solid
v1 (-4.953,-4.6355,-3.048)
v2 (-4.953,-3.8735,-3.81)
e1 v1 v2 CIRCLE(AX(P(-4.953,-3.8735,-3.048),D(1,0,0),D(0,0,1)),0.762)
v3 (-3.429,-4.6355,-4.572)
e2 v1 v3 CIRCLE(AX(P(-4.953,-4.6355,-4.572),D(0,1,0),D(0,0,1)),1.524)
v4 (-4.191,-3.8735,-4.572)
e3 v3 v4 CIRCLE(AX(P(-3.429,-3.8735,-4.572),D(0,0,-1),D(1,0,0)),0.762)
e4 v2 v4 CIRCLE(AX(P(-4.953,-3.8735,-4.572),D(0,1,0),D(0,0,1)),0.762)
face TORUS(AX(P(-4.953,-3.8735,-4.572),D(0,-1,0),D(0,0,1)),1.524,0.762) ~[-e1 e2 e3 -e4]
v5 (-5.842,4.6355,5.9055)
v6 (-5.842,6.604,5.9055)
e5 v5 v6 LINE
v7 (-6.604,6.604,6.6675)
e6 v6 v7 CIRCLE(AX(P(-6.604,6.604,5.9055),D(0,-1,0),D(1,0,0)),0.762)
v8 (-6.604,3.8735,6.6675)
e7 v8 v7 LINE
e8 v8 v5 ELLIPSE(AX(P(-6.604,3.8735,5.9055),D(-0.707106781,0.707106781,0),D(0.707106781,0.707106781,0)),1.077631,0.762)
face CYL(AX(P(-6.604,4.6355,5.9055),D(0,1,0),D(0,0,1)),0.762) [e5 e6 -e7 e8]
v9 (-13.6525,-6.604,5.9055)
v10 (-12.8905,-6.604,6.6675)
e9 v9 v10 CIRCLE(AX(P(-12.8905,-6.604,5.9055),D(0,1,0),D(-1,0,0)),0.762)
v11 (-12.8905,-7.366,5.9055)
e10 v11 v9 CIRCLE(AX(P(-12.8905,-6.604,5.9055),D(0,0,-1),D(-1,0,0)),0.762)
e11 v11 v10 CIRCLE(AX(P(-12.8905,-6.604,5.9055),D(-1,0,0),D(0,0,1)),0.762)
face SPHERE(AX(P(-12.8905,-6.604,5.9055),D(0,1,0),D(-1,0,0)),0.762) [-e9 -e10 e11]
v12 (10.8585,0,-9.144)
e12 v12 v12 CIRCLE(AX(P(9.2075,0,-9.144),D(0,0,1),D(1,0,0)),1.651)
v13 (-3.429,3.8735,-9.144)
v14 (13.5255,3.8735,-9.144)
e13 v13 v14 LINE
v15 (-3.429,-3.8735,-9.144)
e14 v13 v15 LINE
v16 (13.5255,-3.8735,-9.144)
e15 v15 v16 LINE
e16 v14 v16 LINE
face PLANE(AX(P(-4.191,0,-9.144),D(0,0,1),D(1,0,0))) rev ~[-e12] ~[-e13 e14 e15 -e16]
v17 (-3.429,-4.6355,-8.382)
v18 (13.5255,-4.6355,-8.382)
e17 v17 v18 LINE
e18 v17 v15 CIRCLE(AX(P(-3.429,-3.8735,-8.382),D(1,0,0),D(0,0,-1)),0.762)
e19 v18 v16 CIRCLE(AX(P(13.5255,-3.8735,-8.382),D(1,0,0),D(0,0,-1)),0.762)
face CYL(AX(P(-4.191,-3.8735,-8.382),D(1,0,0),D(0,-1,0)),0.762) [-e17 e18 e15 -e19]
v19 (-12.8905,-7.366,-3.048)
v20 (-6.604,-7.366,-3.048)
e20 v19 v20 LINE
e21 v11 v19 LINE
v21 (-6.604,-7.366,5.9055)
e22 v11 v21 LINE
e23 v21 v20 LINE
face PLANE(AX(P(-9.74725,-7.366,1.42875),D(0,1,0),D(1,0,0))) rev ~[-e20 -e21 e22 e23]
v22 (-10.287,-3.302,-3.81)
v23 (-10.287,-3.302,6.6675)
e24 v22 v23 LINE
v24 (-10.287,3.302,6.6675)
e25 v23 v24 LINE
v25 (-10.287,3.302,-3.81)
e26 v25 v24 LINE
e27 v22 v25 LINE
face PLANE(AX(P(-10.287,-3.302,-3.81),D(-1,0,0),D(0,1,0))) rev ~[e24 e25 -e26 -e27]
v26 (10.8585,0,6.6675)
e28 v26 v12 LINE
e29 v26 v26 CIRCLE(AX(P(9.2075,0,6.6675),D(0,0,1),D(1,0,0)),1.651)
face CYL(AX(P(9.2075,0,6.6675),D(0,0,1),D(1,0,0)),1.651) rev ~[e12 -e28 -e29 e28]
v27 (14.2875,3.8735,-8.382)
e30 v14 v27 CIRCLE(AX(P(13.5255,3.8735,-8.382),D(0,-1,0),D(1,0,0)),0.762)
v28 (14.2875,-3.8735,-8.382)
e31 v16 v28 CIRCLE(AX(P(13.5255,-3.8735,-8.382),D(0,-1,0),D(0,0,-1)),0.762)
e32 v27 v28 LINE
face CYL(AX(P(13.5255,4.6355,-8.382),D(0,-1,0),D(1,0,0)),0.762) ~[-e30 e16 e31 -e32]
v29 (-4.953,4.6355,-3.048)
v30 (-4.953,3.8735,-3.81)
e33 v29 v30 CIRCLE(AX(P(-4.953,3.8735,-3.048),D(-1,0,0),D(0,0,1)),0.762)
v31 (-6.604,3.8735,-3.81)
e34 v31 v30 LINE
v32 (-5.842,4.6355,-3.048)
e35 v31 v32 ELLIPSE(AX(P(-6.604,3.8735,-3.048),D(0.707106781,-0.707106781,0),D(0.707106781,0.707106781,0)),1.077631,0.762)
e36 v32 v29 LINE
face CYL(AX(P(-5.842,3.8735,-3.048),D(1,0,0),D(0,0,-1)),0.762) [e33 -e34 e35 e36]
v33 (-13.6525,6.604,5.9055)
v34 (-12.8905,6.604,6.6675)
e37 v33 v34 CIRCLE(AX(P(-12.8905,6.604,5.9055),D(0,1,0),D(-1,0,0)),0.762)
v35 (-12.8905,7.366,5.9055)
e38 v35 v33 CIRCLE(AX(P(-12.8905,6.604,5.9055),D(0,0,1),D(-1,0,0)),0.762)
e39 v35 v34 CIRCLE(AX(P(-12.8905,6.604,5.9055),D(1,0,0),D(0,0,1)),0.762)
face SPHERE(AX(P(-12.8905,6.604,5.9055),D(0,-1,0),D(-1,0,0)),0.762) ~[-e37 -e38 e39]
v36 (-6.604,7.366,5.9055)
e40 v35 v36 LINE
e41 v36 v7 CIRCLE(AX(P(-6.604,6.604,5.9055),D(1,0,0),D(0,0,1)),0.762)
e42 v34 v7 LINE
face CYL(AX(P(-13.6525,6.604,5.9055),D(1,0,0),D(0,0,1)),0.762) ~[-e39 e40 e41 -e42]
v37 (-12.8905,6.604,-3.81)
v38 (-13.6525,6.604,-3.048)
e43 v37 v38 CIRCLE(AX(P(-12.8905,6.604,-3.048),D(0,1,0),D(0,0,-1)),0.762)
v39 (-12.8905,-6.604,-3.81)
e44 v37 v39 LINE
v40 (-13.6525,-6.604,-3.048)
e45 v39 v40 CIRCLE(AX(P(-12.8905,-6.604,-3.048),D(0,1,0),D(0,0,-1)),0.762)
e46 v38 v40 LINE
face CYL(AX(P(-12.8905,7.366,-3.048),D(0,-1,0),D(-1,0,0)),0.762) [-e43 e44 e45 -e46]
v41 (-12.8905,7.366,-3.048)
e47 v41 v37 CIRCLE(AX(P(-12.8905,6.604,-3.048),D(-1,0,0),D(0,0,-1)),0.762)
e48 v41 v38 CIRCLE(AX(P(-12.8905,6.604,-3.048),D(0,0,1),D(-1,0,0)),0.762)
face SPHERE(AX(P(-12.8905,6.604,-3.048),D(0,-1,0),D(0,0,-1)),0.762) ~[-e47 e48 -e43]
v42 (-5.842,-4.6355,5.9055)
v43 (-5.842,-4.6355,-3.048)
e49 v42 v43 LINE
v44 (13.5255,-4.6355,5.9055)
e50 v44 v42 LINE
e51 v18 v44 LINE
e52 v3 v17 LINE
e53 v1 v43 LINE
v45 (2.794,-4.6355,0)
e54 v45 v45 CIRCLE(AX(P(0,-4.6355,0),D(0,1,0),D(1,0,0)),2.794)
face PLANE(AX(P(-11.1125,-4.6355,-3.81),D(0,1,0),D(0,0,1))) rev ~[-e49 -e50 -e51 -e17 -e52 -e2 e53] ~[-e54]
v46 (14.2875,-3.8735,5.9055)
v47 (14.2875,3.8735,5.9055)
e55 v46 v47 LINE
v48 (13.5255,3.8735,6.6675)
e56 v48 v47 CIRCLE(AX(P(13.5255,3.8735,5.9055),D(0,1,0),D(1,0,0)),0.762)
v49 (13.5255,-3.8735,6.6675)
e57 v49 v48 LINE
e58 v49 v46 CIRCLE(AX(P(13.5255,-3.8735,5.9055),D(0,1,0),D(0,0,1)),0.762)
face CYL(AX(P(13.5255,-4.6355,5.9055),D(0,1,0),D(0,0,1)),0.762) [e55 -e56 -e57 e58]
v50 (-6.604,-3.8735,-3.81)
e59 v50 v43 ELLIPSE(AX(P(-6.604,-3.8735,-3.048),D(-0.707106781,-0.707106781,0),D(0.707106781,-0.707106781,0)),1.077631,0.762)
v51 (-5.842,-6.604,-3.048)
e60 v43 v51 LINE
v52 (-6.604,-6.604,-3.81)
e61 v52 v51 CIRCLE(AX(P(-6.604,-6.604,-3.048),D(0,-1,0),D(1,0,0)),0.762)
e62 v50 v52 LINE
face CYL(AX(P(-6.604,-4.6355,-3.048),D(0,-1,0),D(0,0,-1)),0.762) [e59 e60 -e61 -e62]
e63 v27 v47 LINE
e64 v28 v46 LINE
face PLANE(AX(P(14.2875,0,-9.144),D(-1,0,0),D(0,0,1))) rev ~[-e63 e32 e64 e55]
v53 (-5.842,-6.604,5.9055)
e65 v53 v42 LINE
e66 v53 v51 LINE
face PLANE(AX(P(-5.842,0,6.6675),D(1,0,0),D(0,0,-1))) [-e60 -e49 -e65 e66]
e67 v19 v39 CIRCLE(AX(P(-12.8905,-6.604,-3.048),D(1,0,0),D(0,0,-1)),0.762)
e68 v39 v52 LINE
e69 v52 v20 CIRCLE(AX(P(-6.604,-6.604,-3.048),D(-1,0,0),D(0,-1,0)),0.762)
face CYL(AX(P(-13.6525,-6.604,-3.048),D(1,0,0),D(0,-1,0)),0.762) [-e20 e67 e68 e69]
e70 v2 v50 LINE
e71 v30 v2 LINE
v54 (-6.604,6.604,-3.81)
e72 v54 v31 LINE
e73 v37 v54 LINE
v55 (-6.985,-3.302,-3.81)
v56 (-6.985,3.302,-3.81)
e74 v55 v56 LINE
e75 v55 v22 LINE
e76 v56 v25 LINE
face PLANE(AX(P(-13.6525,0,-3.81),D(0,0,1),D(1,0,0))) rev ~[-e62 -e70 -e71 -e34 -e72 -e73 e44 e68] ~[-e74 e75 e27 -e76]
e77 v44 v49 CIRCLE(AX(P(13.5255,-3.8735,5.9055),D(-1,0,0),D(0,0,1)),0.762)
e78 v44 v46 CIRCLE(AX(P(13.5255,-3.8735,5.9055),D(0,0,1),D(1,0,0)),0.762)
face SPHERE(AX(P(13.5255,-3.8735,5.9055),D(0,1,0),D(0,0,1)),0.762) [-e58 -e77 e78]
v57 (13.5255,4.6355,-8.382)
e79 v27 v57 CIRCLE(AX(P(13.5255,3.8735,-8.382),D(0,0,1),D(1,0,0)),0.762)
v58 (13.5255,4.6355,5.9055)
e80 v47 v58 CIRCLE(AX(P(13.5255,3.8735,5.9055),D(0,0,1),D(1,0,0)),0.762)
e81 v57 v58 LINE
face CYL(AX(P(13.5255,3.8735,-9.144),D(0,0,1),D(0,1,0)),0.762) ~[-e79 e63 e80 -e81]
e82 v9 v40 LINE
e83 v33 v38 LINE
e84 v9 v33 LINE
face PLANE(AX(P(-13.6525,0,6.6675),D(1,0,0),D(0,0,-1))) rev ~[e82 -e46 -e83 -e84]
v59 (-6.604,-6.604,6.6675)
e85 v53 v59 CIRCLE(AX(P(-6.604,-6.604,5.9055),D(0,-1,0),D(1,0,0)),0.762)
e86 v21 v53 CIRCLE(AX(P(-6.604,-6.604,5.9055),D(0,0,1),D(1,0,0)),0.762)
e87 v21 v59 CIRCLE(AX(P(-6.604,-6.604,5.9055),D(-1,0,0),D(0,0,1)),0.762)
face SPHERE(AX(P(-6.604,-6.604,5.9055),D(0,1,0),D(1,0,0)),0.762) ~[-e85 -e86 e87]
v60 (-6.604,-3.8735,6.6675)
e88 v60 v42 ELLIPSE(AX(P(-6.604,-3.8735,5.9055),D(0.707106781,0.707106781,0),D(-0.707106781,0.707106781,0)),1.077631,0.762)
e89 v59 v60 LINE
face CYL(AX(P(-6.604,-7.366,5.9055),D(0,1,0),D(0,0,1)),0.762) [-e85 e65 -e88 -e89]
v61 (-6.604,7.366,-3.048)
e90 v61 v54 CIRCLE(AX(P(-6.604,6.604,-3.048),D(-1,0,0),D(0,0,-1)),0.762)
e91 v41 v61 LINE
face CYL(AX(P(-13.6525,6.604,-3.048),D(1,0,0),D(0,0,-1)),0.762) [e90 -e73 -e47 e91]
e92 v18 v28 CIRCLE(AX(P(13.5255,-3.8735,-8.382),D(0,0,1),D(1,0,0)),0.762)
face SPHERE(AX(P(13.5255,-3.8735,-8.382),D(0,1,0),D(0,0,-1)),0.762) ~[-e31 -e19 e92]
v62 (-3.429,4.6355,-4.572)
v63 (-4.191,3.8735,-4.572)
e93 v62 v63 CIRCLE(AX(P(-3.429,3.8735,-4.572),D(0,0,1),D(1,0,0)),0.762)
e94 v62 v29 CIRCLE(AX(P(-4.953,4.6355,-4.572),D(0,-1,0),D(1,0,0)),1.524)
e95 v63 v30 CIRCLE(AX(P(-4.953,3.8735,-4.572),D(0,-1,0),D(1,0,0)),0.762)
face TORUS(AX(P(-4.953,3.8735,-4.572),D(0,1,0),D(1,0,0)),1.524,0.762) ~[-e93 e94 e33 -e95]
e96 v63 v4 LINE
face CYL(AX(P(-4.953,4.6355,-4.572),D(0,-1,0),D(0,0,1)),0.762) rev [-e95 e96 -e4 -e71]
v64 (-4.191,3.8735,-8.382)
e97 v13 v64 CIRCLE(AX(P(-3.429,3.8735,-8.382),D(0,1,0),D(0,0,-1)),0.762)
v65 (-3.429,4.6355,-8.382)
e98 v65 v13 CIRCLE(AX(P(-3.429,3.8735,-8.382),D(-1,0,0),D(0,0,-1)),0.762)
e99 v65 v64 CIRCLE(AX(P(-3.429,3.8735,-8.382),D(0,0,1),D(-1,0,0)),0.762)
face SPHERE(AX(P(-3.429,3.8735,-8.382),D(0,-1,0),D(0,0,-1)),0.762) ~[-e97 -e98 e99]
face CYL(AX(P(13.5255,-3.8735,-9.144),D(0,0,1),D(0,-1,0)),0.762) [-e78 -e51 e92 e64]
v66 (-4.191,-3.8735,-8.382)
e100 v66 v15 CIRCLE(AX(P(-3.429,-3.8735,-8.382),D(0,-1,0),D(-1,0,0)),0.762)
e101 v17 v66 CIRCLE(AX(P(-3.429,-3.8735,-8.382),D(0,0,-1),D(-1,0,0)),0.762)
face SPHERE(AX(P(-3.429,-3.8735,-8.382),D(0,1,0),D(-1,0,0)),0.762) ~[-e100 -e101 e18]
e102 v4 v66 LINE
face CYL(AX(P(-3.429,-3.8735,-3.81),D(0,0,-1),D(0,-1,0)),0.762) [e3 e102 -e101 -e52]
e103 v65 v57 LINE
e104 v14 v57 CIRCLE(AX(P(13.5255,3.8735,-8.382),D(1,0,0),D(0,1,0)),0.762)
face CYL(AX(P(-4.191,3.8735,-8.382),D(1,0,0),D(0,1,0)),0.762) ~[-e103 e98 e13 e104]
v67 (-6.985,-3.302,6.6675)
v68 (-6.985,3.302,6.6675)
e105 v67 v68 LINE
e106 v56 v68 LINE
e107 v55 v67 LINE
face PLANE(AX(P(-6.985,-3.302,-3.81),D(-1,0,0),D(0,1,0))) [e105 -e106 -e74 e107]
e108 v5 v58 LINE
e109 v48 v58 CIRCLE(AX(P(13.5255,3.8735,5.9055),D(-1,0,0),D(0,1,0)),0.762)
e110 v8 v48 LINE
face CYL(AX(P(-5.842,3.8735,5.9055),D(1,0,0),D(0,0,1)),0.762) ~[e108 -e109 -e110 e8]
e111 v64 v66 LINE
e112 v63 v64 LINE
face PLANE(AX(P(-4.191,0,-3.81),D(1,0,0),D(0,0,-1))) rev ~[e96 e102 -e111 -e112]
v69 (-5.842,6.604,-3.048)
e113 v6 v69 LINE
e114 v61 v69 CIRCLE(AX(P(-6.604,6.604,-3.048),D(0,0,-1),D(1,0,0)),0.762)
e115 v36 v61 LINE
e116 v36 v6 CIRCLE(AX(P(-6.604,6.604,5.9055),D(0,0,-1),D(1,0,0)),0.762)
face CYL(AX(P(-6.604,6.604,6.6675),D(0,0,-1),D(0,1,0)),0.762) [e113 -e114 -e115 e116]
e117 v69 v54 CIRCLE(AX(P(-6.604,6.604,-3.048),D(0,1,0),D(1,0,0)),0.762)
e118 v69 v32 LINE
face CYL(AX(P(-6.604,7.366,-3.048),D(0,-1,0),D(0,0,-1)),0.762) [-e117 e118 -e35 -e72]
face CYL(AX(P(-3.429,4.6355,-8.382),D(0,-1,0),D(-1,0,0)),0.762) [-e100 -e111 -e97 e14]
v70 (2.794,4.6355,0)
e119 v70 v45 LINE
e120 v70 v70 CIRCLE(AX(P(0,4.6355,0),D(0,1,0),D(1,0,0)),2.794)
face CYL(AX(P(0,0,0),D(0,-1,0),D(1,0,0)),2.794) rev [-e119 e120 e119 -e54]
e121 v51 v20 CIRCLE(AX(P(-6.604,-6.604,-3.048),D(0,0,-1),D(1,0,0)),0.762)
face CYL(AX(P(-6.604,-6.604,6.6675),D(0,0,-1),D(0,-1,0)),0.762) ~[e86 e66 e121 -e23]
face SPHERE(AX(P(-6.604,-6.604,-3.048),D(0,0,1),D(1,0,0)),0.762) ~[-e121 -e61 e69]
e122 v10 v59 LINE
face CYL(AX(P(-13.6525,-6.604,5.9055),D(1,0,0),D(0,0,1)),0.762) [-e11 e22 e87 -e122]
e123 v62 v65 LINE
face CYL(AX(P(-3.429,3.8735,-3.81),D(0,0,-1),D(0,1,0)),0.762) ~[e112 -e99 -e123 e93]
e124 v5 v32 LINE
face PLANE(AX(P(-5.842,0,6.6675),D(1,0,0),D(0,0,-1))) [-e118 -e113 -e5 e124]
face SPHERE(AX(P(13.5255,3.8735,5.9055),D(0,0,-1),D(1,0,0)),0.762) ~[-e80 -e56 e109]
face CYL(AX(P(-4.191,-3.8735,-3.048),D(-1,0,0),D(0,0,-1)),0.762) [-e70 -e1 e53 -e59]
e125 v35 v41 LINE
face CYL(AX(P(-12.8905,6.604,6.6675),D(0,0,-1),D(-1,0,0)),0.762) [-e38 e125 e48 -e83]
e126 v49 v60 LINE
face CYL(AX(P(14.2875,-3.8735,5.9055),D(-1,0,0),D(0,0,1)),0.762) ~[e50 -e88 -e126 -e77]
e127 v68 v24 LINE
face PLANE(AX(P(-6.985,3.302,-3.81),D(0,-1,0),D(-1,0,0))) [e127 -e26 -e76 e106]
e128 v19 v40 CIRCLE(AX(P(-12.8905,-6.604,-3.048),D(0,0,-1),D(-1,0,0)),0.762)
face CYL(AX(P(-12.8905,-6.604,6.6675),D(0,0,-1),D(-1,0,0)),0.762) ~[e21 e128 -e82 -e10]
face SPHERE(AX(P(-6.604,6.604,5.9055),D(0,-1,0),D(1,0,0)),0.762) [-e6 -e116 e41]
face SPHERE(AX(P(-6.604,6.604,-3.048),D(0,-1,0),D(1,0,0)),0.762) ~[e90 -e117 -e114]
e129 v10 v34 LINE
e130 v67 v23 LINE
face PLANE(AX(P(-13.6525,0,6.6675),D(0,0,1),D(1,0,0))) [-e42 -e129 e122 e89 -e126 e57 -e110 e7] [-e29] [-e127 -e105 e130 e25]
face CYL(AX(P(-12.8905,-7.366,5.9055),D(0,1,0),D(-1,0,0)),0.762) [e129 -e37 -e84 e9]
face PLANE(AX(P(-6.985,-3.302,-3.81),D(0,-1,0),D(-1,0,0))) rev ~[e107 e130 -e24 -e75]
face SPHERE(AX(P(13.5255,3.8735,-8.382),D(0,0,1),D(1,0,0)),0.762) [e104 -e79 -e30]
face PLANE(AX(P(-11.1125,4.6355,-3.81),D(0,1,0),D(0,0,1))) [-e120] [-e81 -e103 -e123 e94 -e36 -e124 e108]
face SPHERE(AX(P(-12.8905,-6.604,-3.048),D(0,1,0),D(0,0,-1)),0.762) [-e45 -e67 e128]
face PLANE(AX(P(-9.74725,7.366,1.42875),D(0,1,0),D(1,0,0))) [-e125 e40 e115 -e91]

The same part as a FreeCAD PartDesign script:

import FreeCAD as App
import Part
import Sketcher

V = App.Vector
Q = App.Units.Quantity


def edges_at(feature, points):
    """Names of the edges that pass closest to the given points."""
    edges = feature.Shape.Edges
    near = lambda p: min(range(len(edges)), key=lambda i: edges[i].distToShape(Part.Vertex(*p))[0])
    return sorted({f"Edge{near(p) + 1}" for p in points})

doc = App.newDocument("Part")
body = doc.addObject("PartDesign::Body", "Body")

# Sketch on XZ plane
sketch1 = doc.addObject("Sketcher::SketchObject", "Sketch")
body.addObject(sketch1)
sketch1.AttachmentSupport = (doc.XZ_Plane, [""])
sketch1.MapMode = "FlatFace"
sketch1.addGeometry(Part.LineSegment(V(-4.2, -3.8, 0), V(-11.1, -3.8, 0)), False)
sketch1.addGeometry(Part.LineSegment(V(-11.1, -3.8, 0), V(-11.1, 6.7, 0)), False)
sketch1.addGeometry(Part.LineSegment(V(-11.1, 6.7, 0), V(14.3, 6.7, 0)), False)
sketch1.addGeometry(Part.LineSegment(V(14.3, 6.7, 0), V(14.3, -9.1, 0)), False)
sketch1.addGeometry(Part.LineSegment(V(14.3, -9.1, 0), V(-4.2, -9.1, 0)), False)
sketch1.addGeometry(Part.LineSegment(V(-4.2, -9.1, 0), V(-4.2, -3.8, 0)), False)
sketch1.addGeometry(Part.Circle(V(0, 0, 0), V(0, 0, 1), 2.8), False)
sketch1.addConstraint(Sketcher.Constraint("Coincident", 0, 2, 1, 1))
sketch1.addConstraint(Sketcher.Constraint("Coincident", 1, 2, 2, 1))
sketch1.addConstraint(Sketcher.Constraint("Coincident", 2, 2, 3, 1))
sketch1.addConstraint(Sketcher.Constraint("Coincident", 3, 2, 4, 1))
sketch1.addConstraint(Sketcher.Constraint("Coincident", 4, 2, 5, 1))
sketch1.addConstraint(Sketcher.Constraint("Coincident", 5, 2, 0, 1))
sketch1.addConstraint(Sketcher.Constraint("Horizontal", 0))
sketch1.addConstraint(Sketcher.Constraint("Vertical", 1))
sketch1.addConstraint(Sketcher.Constraint("Horizontal", 2))
sketch1.addConstraint(Sketcher.Constraint("Vertical", 3))
sketch1.addConstraint(Sketcher.Constraint("Horizontal", 4))
sketch1.addConstraint(Sketcher.Constraint("Vertical", 5))
sketch1.addConstraint(Sketcher.Constraint("Coincident", 6, 3, -1, 1))
sketch1.addConstraint(Sketcher.Constraint("Diameter", 6, Q("0.22 in")))
sketch1.addConstraint(Sketcher.Constraint("DistanceX", 2, 1, 2, 2, Q("1 in")))
sketch1.addConstraint(Sketcher.Constraint("DistanceY", 5, 1, 5, 2, Q("0.21 in")))
sketch1.addConstraint(Sketcher.Constraint("DistanceY", 0, 2, -1, 1, Q("0.15 in")))
sketch1.addConstraint(Sketcher.Constraint("DistanceX", 0, 2, 0, 1, Q("0.2725 in")))
sketch1.addConstraint(Sketcher.Constraint("DistanceY", 1, 1, 1, 2, Q("0.4125 in")))
sketch1.addConstraint(Sketcher.Constraint("DistanceX", 0, 2, -1, 1, Q("0.4375 in")))
pad1 = doc.addObject("PartDesign::Pad", "Pad")
body.addObject(pad1)
pad1.Profile = sketch1
pad1.Length = Q("0.365 in")
pad1.Midplane = True

# Sketch on YZ plane
sketch2 = doc.addObject("Sketcher::SketchObject", "Sketch001")
body.addObject(sketch2)
sketch2.AttachmentSupport = (doc.YZ_Plane, [""])
sketch2.MapMode = "FlatFace"
sketch2.AttachmentOffset = App.Placement(V(0, 0, -0.4375 * 25.4), App.Rotation())
sketch2.addGeometry(Part.LineSegment(V(5, -4, 0), V(-5, -4, 0)), False)
sketch2.addGeometry(Part.LineSegment(V(-5, -4, 0), V(-5, 7, 0)), False)
sketch2.addGeometry(Part.LineSegment(V(-5, 7, 0), V(5, 7, 0)), False)
sketch2.addGeometry(Part.LineSegment(V(5, 7, 0), V(5, -4, 0)), False)
sketch2.addConstraint(Sketcher.Constraint("Coincident", 0, 2, 1, 1))
sketch2.addConstraint(Sketcher.Constraint("Coincident", 1, 2, 2, 1))
sketch2.addConstraint(Sketcher.Constraint("Coincident", 2, 2, 3, 1))
sketch2.addConstraint(Sketcher.Constraint("Coincident", 3, 2, 0, 1))
sketch2.addConstraint(Sketcher.Constraint("Horizontal", 0))
sketch2.addConstraint(Sketcher.Constraint("Vertical", 1))
sketch2.addConstraint(Sketcher.Constraint("Horizontal", 2))
sketch2.addConstraint(Sketcher.Constraint("Vertical", 3))
sketch2.addConstraint(Sketcher.Constraint("DistanceX", 0, 2, 0, 1, Q("0.365 in")))
sketch2.addConstraint(Sketcher.Constraint("DistanceY", 0, 2, -1, 1, Q("0.15 in")))
sketch2.addConstraint(Sketcher.Constraint("DistanceY", 1, 1, 1, 2, Q("0.4125 in")))
sketch2.addConstraint(Sketcher.Constraint("DistanceX", 0, 2, -1, 1, Q("0.1825 in")))
pad2 = doc.addObject("PartDesign::Pad", "Pad001")
body.addObject(pad2)
pad2.Profile = sketch2
pad2.Length = Q("0.1 in")
pad2.Reversed = True

# Sketch on XZ plane
sketch3 = doc.addObject("Sketcher::SketchObject", "Sketch002")
body.addObject(sketch3)
sketch3.AttachmentSupport = (doc.XZ_Plane, [""])
sketch3.MapMode = "FlatFace"
sketch3.addGeometry(Part.LineSegment(V(-14, -4, 0), V(-14, 7, 0)), False)
sketch3.addGeometry(Part.LineSegment(V(-14, 7, 0), V(-6, 7, 0)), False)
sketch3.addGeometry(Part.LineSegment(V(-6, 7, 0), V(-6, -4, 0)), False)
sketch3.addGeometry(Part.LineSegment(V(-6, -4, 0), V(-14, -4, 0)), False)
sketch3.addConstraint(Sketcher.Constraint("Coincident", 0, 2, 1, 1))
sketch3.addConstraint(Sketcher.Constraint("Coincident", 1, 2, 2, 1))
sketch3.addConstraint(Sketcher.Constraint("Coincident", 2, 2, 3, 1))
sketch3.addConstraint(Sketcher.Constraint("Coincident", 3, 2, 0, 1))
sketch3.addConstraint(Sketcher.Constraint("Vertical", 0))
sketch3.addConstraint(Sketcher.Constraint("Horizontal", 1))
sketch3.addConstraint(Sketcher.Constraint("Vertical", 2))
sketch3.addConstraint(Sketcher.Constraint("Horizontal", 3))
sketch3.addConstraint(Sketcher.Constraint("DistanceX", 1, 2, -1, 1, Q("0.23 in")))
sketch3.addConstraint(Sketcher.Constraint("DistanceY", 2, 2, -1, 1, Q("0.15 in")))
sketch3.addConstraint(Sketcher.Constraint("DistanceX", 1, 1, 1, 2, Q("0.3075 in")))
sketch3.addConstraint(Sketcher.Constraint("DistanceY", 0, 1, 0, 2, Q("0.4125 in")))
pad3 = doc.addObject("PartDesign::Pad", "Pad002")
body.addObject(pad3)
pad3.Profile = sketch3
pad3.Length = Q("0.58 in")
pad3.Midplane = True

# Sketch on XY plane
sketch4 = doc.addObject("Sketcher::SketchObject", "Sketch003")
body.addObject(sketch4)
sketch4.AttachmentSupport = (doc.XY_Plane, [""])
sketch4.MapMode = "FlatFace"
sketch4.AttachmentOffset = App.Placement(V(0, 0, -0.15 * 25.4), App.Rotation())
sketch4.addGeometry(Part.LineSegment(V(-7, 3.3, 0), V(-7, -3.3, 0)), False)
sketch4.addGeometry(Part.LineSegment(V(-7, -3.3, 0), V(-10.3, -3.3, 0)), False)
sketch4.addGeometry(Part.LineSegment(V(-10.3, -3.3, 0), V(-10.3, 3.3, 0)), False)
sketch4.addGeometry(Part.LineSegment(V(-10.3, 3.3, 0), V(-7, 3.3, 0)), False)
sketch4.addConstraint(Sketcher.Constraint("Coincident", 0, 2, 1, 1))
sketch4.addConstraint(Sketcher.Constraint("Coincident", 1, 2, 2, 1))
sketch4.addConstraint(Sketcher.Constraint("Coincident", 2, 2, 3, 1))
sketch4.addConstraint(Sketcher.Constraint("Coincident", 3, 2, 0, 1))
sketch4.addConstraint(Sketcher.Constraint("Vertical", 0))
sketch4.addConstraint(Sketcher.Constraint("Horizontal", 1))
sketch4.addConstraint(Sketcher.Constraint("Vertical", 2))
sketch4.addConstraint(Sketcher.Constraint("Horizontal", 3))
sketch4.addConstraint(Sketcher.Constraint("DistanceX", 1, 2, 1, 1, Q("0.13 in")))
sketch4.addConstraint(Sketcher.Constraint("DistanceY", 0, 2, 0, 1, Q("0.26 in")))
sketch4.addConstraint(Sketcher.Constraint("DistanceY", 0, 2, -1, 1, Q("0.13 in")))
sketch4.addConstraint(Sketcher.Constraint("DistanceX", 0, 2, -1, 1, Q("0.275 in")))
pocket1 = doc.addObject("PartDesign::Pocket", "Pocket")
body.addObject(pocket1)
pocket1.Profile = sketch4
pocket1.Length = Q("0.4125 in")
pocket1.Reversed = True

# Sketch on XY plane
sketch5 = doc.addObject("Sketcher::SketchObject", "Sketch004")
body.addObject(sketch5)
sketch5.AttachmentSupport = (doc.XY_Plane, [""])
sketch5.MapMode = "FlatFace"
sketch5.AttachmentOffset = App.Placement(V(0, 0, 0.2625 * 25.4), App.Rotation())
sketch5.addGeometry(Part.Circle(V(9.2, 0, 0), V(0, 0, 1), 1.7), False)
sketch5.addConstraint(Sketcher.Constraint("PointOnObject", 0, 3, -1))
sketch5.addConstraint(Sketcher.Constraint("Diameter", 0, Q("0.13 in")))
sketch5.addConstraint(Sketcher.Constraint("DistanceX", -1, 1, 0, 3, Q("0.3625 in")))
pocket2 = doc.addObject("PartDesign::Pocket", "Pocket001")
body.addObject(pocket2)
pocket2.Profile = sketch5
pocket2.Length = Q("0.6225 in")
doc.recompute()

fillet = doc.addObject("PartDesign::Fillet", "Fillet")
body.addObject(fillet)
fillet.Base = (pocket2, edges_at(pocket2, [
    (14.287, 4.636, -1.238),
    (-4.191, 0, -3.81),
    (-4.191, 0, -9.144),
    (14.287, 0, -9.144),
    (14.287, 0, 6.668),
    (5.048, 4.636, -9.144),
    (-4.191, 4.636, -6.477),
    (-5.016, 4.636, -3.81),
    (-13.652, 0, -3.81),
    (-13.652, 0, 6.668),
    (4.223, -4.636, 6.668),
    (4.223, 4.636, 6.668),
    (-5.842, 6.001, 6.668),
    (-5.842, 6.001, -3.81),
    (-5.842, -6.001, 6.668),
    (-5.842, -7.366, 1.429),
    (-5.842, -6.001, -3.81),
    (-9.747, -7.366, -3.81),
    (-13.652, -7.366, 1.429),
    (-9.747, -7.366, 6.668),
    (-5.842, 7.366, 1.429),
    (-9.747, 7.366, -3.81),
    (-13.652, 7.366, 1.429),
    (-9.747, 7.366, 6.668),
    (-5.016, -4.636, -3.81),
    (-4.191, -4.636, -6.477),
    (5.048, -4.636, -9.144),
    (14.287, -4.636, -1.238),
]))
fillet.Radius = Q("0.03 in")

doc.recompute()
